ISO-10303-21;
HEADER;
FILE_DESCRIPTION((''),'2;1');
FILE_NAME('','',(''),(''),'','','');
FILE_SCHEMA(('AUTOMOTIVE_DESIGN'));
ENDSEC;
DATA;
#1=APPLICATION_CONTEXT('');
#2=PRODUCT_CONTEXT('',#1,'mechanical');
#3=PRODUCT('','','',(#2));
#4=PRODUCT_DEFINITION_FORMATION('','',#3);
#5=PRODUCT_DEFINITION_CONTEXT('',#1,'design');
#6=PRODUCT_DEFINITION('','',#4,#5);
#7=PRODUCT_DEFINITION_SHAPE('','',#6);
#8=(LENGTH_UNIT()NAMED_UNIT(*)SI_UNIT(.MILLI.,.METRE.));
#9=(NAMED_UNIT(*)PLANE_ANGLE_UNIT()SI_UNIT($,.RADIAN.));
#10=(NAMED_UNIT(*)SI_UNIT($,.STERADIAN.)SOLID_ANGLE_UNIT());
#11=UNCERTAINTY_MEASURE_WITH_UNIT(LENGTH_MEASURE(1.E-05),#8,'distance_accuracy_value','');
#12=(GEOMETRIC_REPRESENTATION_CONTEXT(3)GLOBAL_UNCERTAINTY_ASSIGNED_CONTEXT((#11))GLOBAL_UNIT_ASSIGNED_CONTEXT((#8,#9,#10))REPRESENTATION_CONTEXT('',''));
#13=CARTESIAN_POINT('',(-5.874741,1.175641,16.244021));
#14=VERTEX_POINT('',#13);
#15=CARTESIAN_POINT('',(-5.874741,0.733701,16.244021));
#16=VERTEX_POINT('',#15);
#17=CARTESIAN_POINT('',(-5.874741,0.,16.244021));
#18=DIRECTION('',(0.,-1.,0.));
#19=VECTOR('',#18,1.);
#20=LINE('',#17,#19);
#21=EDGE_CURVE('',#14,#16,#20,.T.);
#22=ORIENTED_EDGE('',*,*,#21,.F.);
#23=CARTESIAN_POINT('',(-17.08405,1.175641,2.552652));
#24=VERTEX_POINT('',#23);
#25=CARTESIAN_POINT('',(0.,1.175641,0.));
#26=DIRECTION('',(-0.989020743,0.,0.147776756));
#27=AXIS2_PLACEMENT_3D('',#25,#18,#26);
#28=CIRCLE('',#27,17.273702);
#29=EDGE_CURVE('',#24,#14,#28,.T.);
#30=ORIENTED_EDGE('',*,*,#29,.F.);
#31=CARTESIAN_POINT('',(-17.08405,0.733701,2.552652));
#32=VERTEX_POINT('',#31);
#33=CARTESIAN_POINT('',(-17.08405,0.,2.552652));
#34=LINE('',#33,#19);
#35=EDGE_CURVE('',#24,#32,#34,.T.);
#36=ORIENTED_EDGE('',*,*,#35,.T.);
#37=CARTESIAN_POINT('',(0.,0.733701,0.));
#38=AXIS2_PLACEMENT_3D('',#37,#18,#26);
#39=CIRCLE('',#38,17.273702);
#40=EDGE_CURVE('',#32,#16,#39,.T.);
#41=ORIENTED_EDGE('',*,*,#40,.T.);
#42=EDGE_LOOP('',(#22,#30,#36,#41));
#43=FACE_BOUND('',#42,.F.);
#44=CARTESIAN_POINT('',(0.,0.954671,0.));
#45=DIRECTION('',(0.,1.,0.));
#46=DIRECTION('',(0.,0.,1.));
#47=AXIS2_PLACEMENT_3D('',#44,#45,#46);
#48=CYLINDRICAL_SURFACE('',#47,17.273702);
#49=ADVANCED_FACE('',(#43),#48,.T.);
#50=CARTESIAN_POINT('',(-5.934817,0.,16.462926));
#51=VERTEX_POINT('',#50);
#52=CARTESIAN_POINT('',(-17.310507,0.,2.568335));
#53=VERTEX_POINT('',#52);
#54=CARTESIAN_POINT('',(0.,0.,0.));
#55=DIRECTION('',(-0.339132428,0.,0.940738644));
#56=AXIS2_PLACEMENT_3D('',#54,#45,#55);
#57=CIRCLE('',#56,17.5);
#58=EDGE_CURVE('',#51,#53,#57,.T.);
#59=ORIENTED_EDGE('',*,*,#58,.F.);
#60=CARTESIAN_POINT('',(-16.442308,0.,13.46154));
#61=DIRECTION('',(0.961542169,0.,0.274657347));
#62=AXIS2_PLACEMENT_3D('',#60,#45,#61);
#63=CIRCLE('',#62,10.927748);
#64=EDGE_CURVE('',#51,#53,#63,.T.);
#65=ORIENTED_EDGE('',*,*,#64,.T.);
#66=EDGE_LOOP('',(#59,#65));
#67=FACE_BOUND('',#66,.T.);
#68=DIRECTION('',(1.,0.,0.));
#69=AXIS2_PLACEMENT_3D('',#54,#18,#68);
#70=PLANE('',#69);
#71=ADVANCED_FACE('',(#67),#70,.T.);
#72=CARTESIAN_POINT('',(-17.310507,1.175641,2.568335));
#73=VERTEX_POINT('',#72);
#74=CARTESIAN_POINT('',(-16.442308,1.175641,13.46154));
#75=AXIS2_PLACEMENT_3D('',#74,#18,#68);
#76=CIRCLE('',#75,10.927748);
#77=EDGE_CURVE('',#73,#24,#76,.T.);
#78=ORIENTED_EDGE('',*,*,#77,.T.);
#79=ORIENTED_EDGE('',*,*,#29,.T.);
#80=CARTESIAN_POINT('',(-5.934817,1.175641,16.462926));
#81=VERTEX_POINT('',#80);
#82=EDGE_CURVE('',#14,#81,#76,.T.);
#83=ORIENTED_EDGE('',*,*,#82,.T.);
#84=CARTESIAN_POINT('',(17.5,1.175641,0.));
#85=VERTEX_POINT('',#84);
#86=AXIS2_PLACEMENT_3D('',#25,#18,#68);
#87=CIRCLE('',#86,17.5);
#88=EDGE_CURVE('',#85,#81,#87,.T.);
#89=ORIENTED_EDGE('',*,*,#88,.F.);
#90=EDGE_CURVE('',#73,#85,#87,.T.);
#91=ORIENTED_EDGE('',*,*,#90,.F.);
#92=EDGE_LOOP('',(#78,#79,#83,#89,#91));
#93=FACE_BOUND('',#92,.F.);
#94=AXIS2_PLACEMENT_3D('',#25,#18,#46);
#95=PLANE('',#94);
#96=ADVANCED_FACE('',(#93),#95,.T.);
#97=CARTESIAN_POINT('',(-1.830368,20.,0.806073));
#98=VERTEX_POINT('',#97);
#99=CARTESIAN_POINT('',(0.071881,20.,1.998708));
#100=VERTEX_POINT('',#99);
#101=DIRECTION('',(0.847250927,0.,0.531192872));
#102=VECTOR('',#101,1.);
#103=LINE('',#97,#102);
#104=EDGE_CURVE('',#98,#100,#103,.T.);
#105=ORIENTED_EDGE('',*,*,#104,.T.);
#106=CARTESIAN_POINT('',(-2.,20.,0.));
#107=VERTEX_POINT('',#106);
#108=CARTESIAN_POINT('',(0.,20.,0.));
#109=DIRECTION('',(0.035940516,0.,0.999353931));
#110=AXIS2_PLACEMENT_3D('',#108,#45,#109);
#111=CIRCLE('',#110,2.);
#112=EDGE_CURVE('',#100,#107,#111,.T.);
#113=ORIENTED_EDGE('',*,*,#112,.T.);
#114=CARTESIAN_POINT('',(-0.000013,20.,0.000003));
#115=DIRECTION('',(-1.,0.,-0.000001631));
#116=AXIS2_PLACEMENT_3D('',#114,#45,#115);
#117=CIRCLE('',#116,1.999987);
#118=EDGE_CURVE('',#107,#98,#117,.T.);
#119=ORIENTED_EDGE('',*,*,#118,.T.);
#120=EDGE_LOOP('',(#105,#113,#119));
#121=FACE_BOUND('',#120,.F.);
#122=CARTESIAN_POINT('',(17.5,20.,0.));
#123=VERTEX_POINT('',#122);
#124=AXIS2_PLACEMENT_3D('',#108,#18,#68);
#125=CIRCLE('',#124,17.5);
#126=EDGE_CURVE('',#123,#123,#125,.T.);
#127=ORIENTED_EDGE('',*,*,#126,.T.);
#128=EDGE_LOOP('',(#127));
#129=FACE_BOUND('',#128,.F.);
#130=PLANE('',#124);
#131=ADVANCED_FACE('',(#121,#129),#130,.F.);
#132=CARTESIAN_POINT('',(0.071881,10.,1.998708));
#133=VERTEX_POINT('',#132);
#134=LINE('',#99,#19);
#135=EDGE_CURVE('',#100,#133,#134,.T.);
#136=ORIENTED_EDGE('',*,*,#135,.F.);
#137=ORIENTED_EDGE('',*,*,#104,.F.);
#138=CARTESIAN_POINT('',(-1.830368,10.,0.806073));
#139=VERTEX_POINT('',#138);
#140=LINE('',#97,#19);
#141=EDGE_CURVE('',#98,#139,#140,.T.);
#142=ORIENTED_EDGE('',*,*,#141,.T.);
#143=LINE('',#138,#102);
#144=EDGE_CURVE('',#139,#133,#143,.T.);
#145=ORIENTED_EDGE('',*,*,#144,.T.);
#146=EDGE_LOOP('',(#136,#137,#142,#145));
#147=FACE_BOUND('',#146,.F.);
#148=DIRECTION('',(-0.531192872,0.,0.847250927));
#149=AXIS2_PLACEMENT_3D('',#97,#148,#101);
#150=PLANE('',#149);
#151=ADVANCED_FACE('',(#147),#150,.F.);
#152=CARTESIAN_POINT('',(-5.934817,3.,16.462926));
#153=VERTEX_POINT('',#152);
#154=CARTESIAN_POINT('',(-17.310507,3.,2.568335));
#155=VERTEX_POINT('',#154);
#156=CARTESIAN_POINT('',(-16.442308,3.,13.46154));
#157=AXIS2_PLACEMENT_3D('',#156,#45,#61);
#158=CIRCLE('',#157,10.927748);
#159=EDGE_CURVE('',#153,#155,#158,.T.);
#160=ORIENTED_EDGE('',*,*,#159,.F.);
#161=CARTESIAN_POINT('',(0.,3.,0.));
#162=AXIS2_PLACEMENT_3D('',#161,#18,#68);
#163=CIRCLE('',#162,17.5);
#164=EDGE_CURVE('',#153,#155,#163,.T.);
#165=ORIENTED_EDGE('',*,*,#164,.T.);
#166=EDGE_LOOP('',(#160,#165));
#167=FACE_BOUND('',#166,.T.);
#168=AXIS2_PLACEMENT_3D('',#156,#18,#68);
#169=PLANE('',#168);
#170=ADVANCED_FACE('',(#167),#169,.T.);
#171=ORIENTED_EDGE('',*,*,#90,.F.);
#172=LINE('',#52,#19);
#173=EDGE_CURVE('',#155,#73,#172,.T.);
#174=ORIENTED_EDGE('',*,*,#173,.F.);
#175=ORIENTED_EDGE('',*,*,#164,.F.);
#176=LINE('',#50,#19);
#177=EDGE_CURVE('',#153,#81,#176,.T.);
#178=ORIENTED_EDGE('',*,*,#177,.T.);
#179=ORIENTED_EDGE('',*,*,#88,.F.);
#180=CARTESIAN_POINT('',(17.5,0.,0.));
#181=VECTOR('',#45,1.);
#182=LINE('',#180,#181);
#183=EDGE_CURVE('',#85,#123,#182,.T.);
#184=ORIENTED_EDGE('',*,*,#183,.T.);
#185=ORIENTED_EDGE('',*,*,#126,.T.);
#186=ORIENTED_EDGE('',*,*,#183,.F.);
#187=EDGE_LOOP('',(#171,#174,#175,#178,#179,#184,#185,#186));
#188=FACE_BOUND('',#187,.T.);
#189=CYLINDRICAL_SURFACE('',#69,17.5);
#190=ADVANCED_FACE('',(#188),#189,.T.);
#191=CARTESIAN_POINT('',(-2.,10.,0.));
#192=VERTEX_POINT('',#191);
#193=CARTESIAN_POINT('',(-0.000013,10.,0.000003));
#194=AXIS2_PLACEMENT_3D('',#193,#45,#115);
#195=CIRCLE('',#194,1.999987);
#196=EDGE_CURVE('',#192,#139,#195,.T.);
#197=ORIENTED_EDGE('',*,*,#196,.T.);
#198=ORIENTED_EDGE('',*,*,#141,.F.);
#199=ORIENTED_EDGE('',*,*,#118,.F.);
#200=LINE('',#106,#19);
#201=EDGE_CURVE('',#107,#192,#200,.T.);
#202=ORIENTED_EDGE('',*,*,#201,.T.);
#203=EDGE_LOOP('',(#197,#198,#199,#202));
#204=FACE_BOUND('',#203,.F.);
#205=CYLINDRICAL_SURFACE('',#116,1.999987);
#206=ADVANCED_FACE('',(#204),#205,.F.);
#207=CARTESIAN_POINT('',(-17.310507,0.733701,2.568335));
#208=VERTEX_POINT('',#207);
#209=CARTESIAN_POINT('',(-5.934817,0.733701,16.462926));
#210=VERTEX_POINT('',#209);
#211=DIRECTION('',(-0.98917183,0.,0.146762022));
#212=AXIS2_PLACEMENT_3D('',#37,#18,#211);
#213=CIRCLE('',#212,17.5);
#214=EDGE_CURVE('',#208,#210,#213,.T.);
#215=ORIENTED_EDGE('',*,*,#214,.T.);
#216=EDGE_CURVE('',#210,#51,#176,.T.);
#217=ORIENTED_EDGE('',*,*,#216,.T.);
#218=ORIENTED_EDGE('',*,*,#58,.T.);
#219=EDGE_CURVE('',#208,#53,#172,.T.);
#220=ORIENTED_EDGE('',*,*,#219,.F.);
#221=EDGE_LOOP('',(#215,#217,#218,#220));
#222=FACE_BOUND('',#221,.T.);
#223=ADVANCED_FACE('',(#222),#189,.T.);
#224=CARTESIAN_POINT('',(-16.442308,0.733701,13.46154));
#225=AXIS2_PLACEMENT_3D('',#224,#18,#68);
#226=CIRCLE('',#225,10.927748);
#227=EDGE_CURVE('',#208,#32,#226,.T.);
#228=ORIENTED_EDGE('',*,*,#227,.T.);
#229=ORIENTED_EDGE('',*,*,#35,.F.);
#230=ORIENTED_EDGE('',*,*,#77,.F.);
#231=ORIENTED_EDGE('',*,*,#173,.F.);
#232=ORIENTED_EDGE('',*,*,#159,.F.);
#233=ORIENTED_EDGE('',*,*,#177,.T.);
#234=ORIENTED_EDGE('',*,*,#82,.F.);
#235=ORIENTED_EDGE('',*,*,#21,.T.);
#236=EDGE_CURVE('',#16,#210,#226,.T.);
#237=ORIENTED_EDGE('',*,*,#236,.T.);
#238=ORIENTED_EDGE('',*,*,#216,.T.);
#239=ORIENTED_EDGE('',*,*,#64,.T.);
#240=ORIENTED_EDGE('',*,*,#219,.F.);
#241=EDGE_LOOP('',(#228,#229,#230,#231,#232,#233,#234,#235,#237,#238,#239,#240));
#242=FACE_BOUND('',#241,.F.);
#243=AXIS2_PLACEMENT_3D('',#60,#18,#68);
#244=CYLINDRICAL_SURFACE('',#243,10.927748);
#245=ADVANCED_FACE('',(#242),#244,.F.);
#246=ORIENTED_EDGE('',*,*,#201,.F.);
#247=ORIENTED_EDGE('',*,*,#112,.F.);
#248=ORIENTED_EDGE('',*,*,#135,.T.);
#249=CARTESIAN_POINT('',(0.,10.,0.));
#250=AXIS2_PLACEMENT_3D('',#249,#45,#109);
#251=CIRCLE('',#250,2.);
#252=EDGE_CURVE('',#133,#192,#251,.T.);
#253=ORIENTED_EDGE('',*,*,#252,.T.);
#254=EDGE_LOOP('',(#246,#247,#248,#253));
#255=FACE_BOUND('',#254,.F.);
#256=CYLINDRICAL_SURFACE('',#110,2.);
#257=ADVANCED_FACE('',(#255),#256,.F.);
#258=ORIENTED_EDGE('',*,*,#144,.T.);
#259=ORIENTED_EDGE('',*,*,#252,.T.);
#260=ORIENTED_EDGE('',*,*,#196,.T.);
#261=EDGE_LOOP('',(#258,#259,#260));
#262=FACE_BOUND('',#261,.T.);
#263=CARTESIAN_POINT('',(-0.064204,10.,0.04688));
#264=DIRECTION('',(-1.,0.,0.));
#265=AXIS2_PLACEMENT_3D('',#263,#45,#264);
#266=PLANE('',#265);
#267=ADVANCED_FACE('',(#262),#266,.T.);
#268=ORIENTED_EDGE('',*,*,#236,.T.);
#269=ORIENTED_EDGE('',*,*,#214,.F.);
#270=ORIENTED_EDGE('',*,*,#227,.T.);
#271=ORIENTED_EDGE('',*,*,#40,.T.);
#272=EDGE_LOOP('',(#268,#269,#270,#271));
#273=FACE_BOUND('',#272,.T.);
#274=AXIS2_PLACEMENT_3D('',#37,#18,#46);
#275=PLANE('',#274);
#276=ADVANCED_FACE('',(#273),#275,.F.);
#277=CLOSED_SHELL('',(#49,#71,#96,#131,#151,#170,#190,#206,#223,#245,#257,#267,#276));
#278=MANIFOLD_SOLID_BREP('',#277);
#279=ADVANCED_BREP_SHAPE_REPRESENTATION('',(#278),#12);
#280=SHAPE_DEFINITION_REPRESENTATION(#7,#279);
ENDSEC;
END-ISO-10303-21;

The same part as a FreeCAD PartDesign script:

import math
import FreeCAD as App
import Part
import Sketcher

V = App.Vector
Q = App.Units.Quantity


def add_polygon(sketch, points):
    """Adds a closed chain of lines whose ends are joined by coincident constraints."""
    first, n = sketch.GeometryCount, len(points)
    for a, b in zip(points, points[1:] + points[:1]):
        sketch.addGeometry(Part.LineSegment(App.Vector(*a, 0), App.Vector(*b, 0)), False)
    for i in range(n):
        sketch.addConstraint(Sketcher.Constraint("Coincident", first + i, 2, first + (i + 1) % n, 1))

doc = App.newDocument("Part")
body = doc.addObject("PartDesign::Body", "Body")

# Sketch on XZ plane
sketch1 = body.newObject("Sketcher::SketchObject", "Sketch")
sketch1.AttachmentSupport = (doc.getObject("XZ_Plane"), [""])
sketch1.MapMode = "FlatFace"
sketch1.addGeometry(Part.Circle(V(0, 0, 0), V(0, 0, 1), 18), False)
sketch1.addConstraint([
    Sketcher.Constraint("Coincident", 0, 3, -1, 1),
    Sketcher.Constraint("Diameter", 0, Q("35 mm")),
])
pad1 = body.newObject("PartDesign::Pad", "Pad")
pad1.Profile = sketch1
pad1.Length = 20
pad1.Reversed = True

# Sketch on XZ plane
sketch2 = body.newObject("Sketcher::SketchObject", "Sketch001")
sketch2.AttachmentSupport = (doc.getObject("XZ_Plane"), [""])
sketch2.MapMode = "FlatFace"
sketch2.addGeometry(Part.Circle(V(-16, 13, 0), V(0, 0, 1), 11), False)
sketch2.addConstraint([
    Sketcher.Constraint("Diameter", 0, Q("21.855496 mm")),
    Sketcher.Constraint("DistanceX", 0, 3, -1, 1, Q("16.442308 mm")),
    Sketcher.Constraint("DistanceY", -1, 1, 0, 3, Q("13.46154 mm")),
])
pocket1 = body.newObject("PartDesign::Pocket", "Pocket")
pocket1.Profile = sketch2
pocket1.Length = 3

# Sketch on XZ plane
sketch3 = body.newObject("Sketcher::SketchObject", "Sketch002")
sketch3.AttachmentSupport = (doc.getObject("XZ_Plane"), [""])
sketch3.MapMode = "FlatFace"
sketch3.AttachmentOffset = App.Placement(V(0, 0, -20), App.Rotation())
sketch3.addGeometry([
    Part.ArcOfCircle(Part.Circle(V(0, 0, 0), V(0, 0, 1), 2), math.radians(-180), math.radians(88)),
    Part.ArcOfCircle(Part.Circle(V(0, 0, 0), V(0, 0, 1), 2), math.radians(156), math.radians(180)),
    Part.LineSegment(V(-1.8, 0.8, 0), V(0.1, 2, 0)),
], False)
sketch3.addConstraint([
    Sketcher.Constraint("Tangent", 0, 1, 1, 2),
    Sketcher.Constraint("Coincident", 1, 1, 2, 1),
    Sketcher.Constraint("Coincident", 2, 2, 0, 2),
    Sketcher.Constraint("Coincident", 0, 3, -1, 1),
    Sketcher.Constraint("PointOnObject", 0, 1, -1),
    Sketcher.Constraint("Radius", 0, Q("2 mm")),
    Sketcher.Constraint("Radius", 1, Q("1.999987 mm")),
    Sketcher.Constraint("Distance", 2, Q("2.245201 mm")),
    Sketcher.Constraint("DistanceX", -1, 1, 2, 2, Q("0.071881 mm")),
])
pocket2 = body.newObject("PartDesign::Pocket", "Pocket001")
pocket2.Profile = sketch3
pocket2.Length = 10
pocket2.Reversed = True

# Sketch on YZ plane
sketch4 = body.newObject("Sketcher::SketchObject", "Sketch003")
sketch4.AttachmentSupport = (doc.getObject("YZ_Plane"), [""])
sketch4.MapMode = "FlatFace"
add_polygon(sketch4, [(0.73, 17.53), (0.73, 17.27), (1.18, 17.27), (1.18, 17.53)])  # lines 0-3
sketch4.addConstraint([
    Sketcher.Constraint("Vertical", 0),
    Sketcher.Constraint("Horizontal", 1),
    Sketcher.Constraint("Vertical", 2),
    Sketcher.Constraint("Horizontal", 3),
    Sketcher.Constraint("DistanceX", 1, 1, 1, 2, Q("0.44194 mm")),
    Sketcher.Constraint("DistanceY", 0, 2, 0, 1, Q("0.254811 mm")),
    Sketcher.Constraint("DistanceX", -1, 1, 0, 2, Q("0.733701 mm")),
    Sketcher.Constraint("DistanceY", -1, 1, 0, 2, Q("17.273702 mm")),
])
groove = body.newObject("PartDesign::Groove", "Groove")
groove.Profile = sketch4
groove.ReferenceAxis = (sketch4, ["H_Axis"])
groove.Angle = 360

doc.recompute()
